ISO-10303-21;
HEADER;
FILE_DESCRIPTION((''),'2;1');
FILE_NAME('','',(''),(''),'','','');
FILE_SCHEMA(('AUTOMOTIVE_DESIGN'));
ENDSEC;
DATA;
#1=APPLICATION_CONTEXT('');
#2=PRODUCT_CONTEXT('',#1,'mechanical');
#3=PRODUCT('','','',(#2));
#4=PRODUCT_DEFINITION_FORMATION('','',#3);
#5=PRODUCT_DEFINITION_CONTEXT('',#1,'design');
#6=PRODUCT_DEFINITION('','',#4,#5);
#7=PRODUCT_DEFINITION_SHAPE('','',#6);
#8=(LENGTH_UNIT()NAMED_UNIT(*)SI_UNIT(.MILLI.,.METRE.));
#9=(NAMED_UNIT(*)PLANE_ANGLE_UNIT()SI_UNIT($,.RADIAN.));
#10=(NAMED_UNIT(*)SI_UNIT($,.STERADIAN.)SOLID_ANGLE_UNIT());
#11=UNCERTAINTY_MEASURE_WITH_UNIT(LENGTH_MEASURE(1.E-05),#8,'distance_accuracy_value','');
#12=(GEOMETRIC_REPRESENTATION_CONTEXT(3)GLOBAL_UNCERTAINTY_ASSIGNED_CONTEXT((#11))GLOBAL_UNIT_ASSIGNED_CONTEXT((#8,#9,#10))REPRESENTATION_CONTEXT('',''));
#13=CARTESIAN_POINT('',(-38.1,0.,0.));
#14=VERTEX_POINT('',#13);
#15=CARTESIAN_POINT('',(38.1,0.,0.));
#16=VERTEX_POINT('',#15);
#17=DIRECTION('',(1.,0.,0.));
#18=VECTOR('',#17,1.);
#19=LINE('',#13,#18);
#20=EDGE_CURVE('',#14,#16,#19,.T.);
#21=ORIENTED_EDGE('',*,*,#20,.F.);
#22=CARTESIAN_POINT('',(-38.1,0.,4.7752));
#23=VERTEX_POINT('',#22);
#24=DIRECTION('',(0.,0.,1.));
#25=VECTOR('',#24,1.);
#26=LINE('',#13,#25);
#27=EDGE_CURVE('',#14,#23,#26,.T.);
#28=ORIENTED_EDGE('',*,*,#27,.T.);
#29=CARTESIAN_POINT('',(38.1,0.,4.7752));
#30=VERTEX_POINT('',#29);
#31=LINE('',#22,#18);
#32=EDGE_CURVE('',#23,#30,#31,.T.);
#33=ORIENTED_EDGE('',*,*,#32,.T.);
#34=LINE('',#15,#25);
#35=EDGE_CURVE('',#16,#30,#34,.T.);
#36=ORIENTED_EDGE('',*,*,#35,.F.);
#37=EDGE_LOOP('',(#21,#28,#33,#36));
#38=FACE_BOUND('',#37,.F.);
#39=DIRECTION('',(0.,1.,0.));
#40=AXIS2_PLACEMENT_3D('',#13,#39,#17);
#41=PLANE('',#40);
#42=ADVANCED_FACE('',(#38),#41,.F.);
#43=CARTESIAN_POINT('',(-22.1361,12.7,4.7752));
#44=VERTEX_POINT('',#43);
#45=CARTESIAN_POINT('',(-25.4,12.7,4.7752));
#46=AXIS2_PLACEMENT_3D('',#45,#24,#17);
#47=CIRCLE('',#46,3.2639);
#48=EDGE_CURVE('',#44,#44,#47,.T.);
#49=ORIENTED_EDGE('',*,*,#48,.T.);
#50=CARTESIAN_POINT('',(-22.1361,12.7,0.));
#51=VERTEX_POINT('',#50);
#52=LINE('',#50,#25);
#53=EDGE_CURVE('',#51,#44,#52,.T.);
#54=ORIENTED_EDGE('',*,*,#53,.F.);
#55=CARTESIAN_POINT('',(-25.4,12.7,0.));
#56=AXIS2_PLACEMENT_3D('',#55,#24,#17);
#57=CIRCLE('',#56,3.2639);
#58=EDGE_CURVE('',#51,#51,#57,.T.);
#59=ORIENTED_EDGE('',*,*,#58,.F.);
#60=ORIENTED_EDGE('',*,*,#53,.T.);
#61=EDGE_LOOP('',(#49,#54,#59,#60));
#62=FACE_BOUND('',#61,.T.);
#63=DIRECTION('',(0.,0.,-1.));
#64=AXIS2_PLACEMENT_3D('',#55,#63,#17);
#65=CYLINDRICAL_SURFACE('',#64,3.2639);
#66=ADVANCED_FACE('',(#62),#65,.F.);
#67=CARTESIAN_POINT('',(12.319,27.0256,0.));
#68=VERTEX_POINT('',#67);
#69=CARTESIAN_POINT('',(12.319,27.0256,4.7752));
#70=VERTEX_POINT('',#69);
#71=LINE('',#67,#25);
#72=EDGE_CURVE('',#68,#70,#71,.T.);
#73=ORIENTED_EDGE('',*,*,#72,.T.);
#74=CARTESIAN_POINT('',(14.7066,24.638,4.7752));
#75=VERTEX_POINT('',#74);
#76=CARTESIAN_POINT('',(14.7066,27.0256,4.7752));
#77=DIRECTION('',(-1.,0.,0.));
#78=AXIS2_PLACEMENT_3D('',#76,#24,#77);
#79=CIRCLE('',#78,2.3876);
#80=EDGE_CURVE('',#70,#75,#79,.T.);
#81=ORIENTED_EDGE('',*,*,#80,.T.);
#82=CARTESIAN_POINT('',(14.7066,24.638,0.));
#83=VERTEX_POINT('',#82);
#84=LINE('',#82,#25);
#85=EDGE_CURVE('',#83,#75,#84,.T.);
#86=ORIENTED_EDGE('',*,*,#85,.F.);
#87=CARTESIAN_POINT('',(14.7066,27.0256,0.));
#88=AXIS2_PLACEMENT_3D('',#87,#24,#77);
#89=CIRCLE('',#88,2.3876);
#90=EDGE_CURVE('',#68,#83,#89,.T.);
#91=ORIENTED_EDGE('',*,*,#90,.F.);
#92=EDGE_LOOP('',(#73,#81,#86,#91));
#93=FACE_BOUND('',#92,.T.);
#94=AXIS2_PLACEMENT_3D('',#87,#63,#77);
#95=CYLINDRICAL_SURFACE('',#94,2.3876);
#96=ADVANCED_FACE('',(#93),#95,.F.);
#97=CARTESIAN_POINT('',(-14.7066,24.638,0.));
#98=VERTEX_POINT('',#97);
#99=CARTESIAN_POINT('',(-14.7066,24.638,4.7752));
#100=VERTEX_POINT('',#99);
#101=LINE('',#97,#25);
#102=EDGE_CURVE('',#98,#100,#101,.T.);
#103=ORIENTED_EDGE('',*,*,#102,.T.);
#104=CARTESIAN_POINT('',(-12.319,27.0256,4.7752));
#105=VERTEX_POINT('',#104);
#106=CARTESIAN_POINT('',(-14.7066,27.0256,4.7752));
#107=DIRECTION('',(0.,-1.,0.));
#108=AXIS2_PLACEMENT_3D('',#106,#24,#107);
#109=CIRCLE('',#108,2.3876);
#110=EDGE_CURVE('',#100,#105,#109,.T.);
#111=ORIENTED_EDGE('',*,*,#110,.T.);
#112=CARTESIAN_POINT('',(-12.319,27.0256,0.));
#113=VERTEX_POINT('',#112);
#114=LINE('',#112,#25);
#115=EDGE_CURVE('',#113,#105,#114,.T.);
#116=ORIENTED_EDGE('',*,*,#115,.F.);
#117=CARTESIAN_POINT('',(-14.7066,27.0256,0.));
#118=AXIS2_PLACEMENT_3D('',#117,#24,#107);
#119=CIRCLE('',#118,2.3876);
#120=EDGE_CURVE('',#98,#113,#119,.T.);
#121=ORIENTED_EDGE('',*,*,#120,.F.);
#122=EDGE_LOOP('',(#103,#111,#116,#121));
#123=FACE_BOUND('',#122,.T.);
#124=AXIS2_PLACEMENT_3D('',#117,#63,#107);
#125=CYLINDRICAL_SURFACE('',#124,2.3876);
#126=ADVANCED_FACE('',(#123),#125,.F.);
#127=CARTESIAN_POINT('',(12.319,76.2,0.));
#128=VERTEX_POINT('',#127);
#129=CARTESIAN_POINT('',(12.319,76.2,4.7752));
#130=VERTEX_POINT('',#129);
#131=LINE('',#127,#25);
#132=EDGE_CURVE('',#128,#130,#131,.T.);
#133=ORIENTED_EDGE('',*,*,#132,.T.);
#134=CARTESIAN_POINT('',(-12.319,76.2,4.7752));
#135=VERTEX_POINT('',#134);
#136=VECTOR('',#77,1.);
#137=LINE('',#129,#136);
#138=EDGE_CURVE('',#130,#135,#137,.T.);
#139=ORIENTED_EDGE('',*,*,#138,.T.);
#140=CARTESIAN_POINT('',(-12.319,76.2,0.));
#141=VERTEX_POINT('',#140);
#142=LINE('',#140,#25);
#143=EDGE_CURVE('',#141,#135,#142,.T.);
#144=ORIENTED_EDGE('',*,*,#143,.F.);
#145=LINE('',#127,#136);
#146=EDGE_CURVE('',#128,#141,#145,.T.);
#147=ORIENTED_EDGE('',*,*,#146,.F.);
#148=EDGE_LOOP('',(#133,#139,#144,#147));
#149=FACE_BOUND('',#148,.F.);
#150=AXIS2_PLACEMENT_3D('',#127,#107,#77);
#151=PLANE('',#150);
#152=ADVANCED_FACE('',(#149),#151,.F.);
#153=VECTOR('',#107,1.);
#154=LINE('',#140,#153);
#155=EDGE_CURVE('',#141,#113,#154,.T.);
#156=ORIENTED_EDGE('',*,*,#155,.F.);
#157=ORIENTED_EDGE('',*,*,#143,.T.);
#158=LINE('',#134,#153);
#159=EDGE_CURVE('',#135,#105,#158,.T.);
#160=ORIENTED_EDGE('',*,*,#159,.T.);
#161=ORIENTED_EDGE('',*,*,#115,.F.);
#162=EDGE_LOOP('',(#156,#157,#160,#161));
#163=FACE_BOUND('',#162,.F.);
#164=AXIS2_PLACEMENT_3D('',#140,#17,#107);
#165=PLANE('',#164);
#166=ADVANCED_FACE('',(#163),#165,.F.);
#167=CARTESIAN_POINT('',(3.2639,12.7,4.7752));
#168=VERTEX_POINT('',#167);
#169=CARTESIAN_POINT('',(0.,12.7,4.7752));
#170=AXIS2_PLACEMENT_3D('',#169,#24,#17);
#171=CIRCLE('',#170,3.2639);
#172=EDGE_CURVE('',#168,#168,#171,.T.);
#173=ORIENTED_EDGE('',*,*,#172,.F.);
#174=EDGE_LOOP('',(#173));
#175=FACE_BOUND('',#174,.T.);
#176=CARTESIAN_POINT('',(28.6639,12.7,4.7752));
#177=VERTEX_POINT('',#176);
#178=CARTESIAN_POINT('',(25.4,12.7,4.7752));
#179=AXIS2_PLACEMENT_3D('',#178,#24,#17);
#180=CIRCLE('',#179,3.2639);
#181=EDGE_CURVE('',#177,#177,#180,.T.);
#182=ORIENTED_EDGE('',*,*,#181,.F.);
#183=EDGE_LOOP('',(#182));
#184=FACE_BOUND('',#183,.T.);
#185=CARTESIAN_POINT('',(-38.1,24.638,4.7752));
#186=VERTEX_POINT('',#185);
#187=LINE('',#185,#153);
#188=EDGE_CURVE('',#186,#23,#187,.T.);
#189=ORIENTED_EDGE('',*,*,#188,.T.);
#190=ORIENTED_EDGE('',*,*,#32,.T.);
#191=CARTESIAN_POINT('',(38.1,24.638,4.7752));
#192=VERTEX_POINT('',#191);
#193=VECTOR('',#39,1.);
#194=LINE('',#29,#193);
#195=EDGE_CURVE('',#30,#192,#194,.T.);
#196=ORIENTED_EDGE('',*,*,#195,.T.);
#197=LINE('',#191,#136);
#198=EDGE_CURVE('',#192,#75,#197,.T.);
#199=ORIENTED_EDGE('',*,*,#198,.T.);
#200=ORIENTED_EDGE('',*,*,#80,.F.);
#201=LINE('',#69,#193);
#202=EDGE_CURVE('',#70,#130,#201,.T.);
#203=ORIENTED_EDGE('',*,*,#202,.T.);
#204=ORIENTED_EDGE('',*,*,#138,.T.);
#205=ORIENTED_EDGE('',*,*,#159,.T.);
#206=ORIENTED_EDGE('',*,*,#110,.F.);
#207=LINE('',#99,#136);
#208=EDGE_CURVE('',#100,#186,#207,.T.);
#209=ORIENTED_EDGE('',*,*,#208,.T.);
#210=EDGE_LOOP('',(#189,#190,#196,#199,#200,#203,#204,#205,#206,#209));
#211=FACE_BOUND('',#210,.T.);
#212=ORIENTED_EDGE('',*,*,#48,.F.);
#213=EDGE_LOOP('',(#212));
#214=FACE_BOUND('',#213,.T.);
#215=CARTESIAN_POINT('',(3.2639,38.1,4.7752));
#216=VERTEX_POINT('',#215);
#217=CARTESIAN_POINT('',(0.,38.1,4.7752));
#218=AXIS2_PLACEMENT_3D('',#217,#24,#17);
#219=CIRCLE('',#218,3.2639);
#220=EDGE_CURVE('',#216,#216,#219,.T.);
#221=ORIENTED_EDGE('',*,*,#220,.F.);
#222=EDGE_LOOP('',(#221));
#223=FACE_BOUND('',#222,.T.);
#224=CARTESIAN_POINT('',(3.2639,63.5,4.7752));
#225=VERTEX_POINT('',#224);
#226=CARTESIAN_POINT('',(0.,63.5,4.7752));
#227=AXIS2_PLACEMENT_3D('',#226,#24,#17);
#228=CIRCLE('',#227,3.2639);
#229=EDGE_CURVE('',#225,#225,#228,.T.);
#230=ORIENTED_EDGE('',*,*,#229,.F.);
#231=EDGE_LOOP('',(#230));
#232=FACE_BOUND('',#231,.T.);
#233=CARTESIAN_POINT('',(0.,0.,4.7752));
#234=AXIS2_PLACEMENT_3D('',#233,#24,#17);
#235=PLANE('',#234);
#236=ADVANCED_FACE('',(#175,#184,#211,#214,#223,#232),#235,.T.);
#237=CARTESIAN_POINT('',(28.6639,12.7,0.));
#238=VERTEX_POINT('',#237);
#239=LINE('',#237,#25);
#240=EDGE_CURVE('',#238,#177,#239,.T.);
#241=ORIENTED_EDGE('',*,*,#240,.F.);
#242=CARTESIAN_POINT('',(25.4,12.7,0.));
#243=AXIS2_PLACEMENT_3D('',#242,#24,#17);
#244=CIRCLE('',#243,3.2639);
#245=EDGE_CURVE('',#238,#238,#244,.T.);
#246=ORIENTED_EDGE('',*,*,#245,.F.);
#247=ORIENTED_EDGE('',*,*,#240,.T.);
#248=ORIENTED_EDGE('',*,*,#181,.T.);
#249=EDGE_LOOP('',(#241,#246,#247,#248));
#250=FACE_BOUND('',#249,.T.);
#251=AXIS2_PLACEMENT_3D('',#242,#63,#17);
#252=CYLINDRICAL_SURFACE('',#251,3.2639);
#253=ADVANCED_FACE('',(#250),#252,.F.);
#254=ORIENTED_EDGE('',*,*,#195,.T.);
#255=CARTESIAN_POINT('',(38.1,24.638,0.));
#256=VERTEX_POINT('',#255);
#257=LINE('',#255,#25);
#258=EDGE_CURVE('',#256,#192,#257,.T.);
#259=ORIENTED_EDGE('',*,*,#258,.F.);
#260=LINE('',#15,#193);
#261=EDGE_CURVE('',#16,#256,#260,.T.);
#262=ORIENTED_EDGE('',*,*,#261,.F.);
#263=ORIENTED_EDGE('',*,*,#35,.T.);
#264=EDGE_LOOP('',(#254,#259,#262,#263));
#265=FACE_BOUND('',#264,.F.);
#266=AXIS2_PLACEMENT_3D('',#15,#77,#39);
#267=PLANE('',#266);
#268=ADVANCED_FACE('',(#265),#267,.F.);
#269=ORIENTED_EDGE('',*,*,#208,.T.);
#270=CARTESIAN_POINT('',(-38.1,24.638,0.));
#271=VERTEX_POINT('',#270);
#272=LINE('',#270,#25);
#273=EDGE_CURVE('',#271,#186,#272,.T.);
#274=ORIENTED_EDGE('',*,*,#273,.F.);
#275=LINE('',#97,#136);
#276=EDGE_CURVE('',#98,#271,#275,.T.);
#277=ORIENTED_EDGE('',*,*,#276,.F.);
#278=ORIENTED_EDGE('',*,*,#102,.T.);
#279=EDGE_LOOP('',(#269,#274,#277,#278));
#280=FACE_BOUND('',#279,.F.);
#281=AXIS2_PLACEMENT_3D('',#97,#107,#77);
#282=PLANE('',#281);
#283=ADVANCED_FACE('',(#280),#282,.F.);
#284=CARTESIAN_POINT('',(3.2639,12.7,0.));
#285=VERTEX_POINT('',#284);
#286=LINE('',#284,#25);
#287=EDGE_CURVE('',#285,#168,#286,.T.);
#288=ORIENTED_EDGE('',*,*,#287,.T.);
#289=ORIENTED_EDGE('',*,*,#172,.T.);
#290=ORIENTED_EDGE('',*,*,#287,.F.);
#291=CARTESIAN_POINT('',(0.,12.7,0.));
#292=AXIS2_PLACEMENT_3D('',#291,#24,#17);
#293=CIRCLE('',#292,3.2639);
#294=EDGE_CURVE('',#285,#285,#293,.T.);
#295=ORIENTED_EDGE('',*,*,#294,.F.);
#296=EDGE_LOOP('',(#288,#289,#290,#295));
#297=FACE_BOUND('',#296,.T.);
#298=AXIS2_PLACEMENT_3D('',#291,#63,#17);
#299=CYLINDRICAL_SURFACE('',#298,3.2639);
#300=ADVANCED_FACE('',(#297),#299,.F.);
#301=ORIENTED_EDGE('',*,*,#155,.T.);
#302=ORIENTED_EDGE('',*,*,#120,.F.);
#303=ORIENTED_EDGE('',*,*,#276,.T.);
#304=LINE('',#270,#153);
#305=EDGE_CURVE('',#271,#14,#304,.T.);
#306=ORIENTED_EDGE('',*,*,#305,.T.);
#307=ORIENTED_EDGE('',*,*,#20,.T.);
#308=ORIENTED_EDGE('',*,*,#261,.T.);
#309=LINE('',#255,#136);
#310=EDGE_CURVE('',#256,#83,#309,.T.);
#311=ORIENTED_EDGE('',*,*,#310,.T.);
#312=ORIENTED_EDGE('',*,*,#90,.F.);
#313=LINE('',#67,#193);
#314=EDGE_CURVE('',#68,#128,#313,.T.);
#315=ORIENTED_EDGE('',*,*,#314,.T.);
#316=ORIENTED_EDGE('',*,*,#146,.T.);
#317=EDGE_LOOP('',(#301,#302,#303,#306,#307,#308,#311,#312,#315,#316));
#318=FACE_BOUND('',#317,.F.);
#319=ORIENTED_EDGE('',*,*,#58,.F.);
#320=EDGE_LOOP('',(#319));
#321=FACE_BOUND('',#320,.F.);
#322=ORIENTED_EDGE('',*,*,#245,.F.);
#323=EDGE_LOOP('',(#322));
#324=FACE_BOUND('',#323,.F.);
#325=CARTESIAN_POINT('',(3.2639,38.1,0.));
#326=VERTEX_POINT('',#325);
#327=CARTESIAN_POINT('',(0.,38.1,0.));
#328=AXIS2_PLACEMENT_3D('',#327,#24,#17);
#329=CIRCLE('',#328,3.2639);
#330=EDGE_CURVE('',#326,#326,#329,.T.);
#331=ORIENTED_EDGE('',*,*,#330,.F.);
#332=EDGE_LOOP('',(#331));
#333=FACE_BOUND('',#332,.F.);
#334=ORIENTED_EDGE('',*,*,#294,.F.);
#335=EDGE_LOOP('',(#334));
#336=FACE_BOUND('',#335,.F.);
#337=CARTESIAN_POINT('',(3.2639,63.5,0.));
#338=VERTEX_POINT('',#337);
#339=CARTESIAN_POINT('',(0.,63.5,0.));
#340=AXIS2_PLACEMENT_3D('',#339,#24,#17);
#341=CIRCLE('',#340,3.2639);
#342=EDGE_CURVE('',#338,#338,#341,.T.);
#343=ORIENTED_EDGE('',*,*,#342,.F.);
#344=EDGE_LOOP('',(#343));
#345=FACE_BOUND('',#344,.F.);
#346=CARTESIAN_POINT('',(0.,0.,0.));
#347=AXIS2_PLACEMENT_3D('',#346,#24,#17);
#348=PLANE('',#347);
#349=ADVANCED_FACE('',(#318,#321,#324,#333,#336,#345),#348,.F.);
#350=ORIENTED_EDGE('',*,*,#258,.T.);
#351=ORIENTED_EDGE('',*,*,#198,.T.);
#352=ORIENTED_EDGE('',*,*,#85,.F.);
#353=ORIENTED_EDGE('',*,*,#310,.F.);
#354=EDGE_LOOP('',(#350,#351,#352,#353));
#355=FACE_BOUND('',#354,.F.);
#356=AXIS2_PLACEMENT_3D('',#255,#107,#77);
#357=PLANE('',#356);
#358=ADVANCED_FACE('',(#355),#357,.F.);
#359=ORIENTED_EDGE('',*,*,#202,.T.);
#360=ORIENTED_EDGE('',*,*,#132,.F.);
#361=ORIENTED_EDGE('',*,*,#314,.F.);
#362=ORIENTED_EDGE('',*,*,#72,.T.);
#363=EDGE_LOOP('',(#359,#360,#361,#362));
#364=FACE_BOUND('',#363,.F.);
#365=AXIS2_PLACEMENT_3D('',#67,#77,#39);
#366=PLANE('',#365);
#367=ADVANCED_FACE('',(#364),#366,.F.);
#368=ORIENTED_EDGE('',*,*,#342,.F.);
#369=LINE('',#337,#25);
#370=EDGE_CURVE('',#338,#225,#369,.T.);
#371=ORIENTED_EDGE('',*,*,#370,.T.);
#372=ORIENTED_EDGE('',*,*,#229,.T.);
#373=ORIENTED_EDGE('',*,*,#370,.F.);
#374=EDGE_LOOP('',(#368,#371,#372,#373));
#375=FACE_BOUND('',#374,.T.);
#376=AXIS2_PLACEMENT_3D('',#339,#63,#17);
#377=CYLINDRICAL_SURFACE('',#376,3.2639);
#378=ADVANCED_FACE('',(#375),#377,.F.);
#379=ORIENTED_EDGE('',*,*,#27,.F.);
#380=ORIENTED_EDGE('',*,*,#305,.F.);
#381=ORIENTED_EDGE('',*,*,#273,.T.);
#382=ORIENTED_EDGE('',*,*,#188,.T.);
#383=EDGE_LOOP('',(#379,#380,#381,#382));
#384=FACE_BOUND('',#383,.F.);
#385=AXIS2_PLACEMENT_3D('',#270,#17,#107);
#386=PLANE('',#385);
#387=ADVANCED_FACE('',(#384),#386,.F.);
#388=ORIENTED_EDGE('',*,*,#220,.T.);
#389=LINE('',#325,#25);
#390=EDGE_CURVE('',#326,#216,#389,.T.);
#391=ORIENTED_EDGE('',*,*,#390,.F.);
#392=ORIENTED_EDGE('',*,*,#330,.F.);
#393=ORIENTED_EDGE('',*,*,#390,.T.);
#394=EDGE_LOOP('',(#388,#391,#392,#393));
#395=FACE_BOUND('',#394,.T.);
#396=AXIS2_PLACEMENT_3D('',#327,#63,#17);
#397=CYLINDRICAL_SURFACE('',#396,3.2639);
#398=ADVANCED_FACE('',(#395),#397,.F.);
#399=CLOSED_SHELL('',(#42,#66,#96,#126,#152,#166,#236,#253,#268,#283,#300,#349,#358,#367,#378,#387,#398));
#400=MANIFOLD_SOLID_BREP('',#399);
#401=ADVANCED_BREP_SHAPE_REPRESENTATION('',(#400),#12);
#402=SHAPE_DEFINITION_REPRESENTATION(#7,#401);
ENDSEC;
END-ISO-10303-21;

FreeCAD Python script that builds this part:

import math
import FreeCAD as App
import Part
import Sketcher

V = App.Vector
Q = App.Units.Quantity

doc = App.newDocument("Part")
params = doc.addObject("Spreadsheet::Sheet", "Params")
for row, (alias, value) in enumerate([
    ("sketch1_width", "3 in"),
    ("sketch1_diameter", "0.257 in"),
    ("sketch1_radius", "0.094 in"),
    ("sketch1_width2", "0.97 in"),
    ("pad1_length", "0.188 in"),
], start=1):
    params.set(f"A{row}", alias)
    params.set(f"B{row}", "=" + value)
    params.setAlias(f"B{row}", alias)

body = doc.addObject("PartDesign::Body", "Body")

# Sketch on XY plane
sketch1 = body.newObject("Sketcher::SketchObject", "Sketch")
sketch1.AttachmentSupport = (doc.getObject("XY_Plane"), [""])
sketch1.MapMode = "FlatFace"
sketch1.addGeometry(Part.LineSegment(V(-14.7066, 24.638, 0), V(-38.1, 24.638, 0)), False)
sketch1.addGeometry(Part.LineSegment(V(-38.1, 24.638, 0), V(-38.1, 0, 0)), False)
sketch1.addGeometry(Part.LineSegment(V(-38.1, 0, 0), V(38.1, 0, 0)), False)
sketch1.addGeometry(Part.LineSegment(V(38.1, 0, 0), V(38.1, 24.638, 0)), False)
sketch1.addGeometry(Part.LineSegment(V(38.1, 24.638, 0), V(14.7066, 24.638, 0)), False)
sketch1.addGeometry(Part.ArcOfCircle(Part.Circle(V(14.7066, 27.0256, 0), V(0, 0, 1), 2.3876), math.radians(180), math.radians(270)), False)
sketch1.addGeometry(Part.LineSegment(V(12.319, 27.0256, 0), V(12.319, 76.2, 0)), False)
sketch1.addGeometry(Part.LineSegment(V(12.319, 76.2, 0), V(-12.319, 76.2, 0)), False)
sketch1.addGeometry(Part.LineSegment(V(-12.319, 76.2, 0), V(-12.319, 27.0256, 0)), False)
sketch1.addGeometry(Part.ArcOfCircle(Part.Circle(V(-14.7066, 27.0256, 0), V(0, 0, 1), 2.3876), math.radians(-90), math.radians(0)), False)
sketch1.addGeometry(Part.Circle(V(-25.4, 12.7, 0), V(0, 0, 1), 3.2639), False)
sketch1.addGeometry(Part.Circle(V(0, 12.7, 0), V(0, 0, 1), 3.2639), False)
sketch1.addGeometry(Part.Circle(V(25.4, 12.7, 0), V(0, 0, 1), 3.2639), False)
sketch1.addGeometry(Part.Circle(V(0, 38.1, 0), V(0, 0, 1), 3.2639), False)
sketch1.addGeometry(Part.Circle(V(0, 63.5, 0), V(0, 0, 1), 3.2639), False)
sketch1.addConstraint(Sketcher.Constraint("Coincident", 0, 2, 1, 1))
sketch1.addConstraint(Sketcher.Constraint("Coincident", 1, 2, 2, 1))
sketch1.addConstraint(Sketcher.Constraint("Coincident", 2, 2, 3, 1))
sketch1.addConstraint(Sketcher.Constraint("Coincident", 3, 2, 4, 1))
sketch1.addConstraint(Sketcher.Constraint("Tangent", 4, 2, 5, 2))
sketch1.addConstraint(Sketcher.Constraint("Tangent", 5, 1, 6, 1))
sketch1.addConstraint(Sketcher.Constraint("Coincident", 6, 2, 7, 1))
sketch1.addConstraint(Sketcher.Constraint("Coincident", 7, 2, 8, 1))
sketch1.addConstraint(Sketcher.Constraint("Tangent", 8, 2, 9, 2))
sketch1.addConstraint(Sketcher.Constraint("Tangent", 9, 1, 0, 1))
sketch1.addConstraint(Sketcher.Constraint("Horizontal", 0))
sketch1.addConstraint(Sketcher.Constraint("Vertical", 1))
sketch1.addConstraint(Sketcher.Constraint("Horizontal", 2))
sketch1.addConstraint(Sketcher.Constraint("Vertical", 3))
sketch1.addConstraint(Sketcher.Constraint("Horizontal", 4))
sketch1.addConstraint(Sketcher.Constraint("Vertical", 6))
sketch1.addConstraint(Sketcher.Constraint("Horizontal", 7))
sketch1.addConstraint(Sketcher.Constraint("Vertical", 8))
sketch1.addConstraint(Sketcher.Constraint("Equal", 5, 9))
sketch1.addConstraint(Sketcher.Constraint("Equal", 10, 11))
sketch1.addConstraint(Sketcher.Constraint("Equal", 11, 12))
sketch1.addConstraint(Sketcher.Constraint("Equal", 12, 13))
sketch1.addConstraint(Sketcher.Constraint("Equal", 13, 14))
sketch1.addConstraint(Sketcher.Constraint("Symmetric", 1, 2, 2, 2, -1, 1))
sketch1.addConstraint(Sketcher.Constraint("Symmetric", 5, 3, 9, 3, -2))
sketch1.addConstraint(Sketcher.Constraint("Symmetric", 10, 3, 12, 3, -2))
sketch1.addConstraint(Sketcher.Constraint("PointOnObject", 11, 3, -2))
sketch1.addConstraint(Sketcher.Constraint("PointOnObject", 13, 3, -2))
sketch1.addConstraint(Sketcher.Constraint("PointOnObject", 14, 3, -2))
sketch1.addConstraint(Sketcher.Constraint("Horizontal", 10, 3, 11, 3))
sketch1.addConstraint(Sketcher.Constraint("Equal", 7, 1))
sketch1.addConstraint(Sketcher.Constraint("DistanceX", 2, 1, 2, 2, Q("3 in")))
sketch1.addConstraint(Sketcher.Constraint("Diameter", 10, Q("0.257 in")))
sketch1.addConstraint(Sketcher.Constraint("DistanceX", 10, 3, -1, 1, Q("1 in")))
sketch1.addConstraint(Sketcher.Constraint("DistanceY", -1, 1, 6, 2, Q("3 in")))
sketch1.addConstraint(Sketcher.Constraint("Radius", 5, Q("0.094 in")))
sketch1.addConstraint(Sketcher.Constraint("DistanceY", 11, 3, 13, 3, Q("1 in")))
sketch1.addConstraint(Sketcher.Constraint("DistanceY", 13, 3, 14, 3, Q("1 in")))
sketch1.addConstraint(Sketcher.Constraint("DistanceX", 7, 2, 7, 1, Q("0.97 in")))
sketch1.addConstraint(Sketcher.Constraint("DistanceY", -1, 1, 10, 3, Q("0.5 in")))
sketch1.setExpression("Constraints[31]", "Params.sketch1_width")
sketch1.setExpression("Constraints[32]", "Params.sketch1_diameter")
sketch1.setExpression("Constraints[35]", "Params.sketch1_radius")
sketch1.setExpression("Constraints[38]", "Params.sketch1_width2")
pad1 = body.newObject("PartDesign::Pad", "Pad")
pad1.Profile = sketch1
pad1.setExpression("Length", "Params.pad1_length")

doc.recompute()
